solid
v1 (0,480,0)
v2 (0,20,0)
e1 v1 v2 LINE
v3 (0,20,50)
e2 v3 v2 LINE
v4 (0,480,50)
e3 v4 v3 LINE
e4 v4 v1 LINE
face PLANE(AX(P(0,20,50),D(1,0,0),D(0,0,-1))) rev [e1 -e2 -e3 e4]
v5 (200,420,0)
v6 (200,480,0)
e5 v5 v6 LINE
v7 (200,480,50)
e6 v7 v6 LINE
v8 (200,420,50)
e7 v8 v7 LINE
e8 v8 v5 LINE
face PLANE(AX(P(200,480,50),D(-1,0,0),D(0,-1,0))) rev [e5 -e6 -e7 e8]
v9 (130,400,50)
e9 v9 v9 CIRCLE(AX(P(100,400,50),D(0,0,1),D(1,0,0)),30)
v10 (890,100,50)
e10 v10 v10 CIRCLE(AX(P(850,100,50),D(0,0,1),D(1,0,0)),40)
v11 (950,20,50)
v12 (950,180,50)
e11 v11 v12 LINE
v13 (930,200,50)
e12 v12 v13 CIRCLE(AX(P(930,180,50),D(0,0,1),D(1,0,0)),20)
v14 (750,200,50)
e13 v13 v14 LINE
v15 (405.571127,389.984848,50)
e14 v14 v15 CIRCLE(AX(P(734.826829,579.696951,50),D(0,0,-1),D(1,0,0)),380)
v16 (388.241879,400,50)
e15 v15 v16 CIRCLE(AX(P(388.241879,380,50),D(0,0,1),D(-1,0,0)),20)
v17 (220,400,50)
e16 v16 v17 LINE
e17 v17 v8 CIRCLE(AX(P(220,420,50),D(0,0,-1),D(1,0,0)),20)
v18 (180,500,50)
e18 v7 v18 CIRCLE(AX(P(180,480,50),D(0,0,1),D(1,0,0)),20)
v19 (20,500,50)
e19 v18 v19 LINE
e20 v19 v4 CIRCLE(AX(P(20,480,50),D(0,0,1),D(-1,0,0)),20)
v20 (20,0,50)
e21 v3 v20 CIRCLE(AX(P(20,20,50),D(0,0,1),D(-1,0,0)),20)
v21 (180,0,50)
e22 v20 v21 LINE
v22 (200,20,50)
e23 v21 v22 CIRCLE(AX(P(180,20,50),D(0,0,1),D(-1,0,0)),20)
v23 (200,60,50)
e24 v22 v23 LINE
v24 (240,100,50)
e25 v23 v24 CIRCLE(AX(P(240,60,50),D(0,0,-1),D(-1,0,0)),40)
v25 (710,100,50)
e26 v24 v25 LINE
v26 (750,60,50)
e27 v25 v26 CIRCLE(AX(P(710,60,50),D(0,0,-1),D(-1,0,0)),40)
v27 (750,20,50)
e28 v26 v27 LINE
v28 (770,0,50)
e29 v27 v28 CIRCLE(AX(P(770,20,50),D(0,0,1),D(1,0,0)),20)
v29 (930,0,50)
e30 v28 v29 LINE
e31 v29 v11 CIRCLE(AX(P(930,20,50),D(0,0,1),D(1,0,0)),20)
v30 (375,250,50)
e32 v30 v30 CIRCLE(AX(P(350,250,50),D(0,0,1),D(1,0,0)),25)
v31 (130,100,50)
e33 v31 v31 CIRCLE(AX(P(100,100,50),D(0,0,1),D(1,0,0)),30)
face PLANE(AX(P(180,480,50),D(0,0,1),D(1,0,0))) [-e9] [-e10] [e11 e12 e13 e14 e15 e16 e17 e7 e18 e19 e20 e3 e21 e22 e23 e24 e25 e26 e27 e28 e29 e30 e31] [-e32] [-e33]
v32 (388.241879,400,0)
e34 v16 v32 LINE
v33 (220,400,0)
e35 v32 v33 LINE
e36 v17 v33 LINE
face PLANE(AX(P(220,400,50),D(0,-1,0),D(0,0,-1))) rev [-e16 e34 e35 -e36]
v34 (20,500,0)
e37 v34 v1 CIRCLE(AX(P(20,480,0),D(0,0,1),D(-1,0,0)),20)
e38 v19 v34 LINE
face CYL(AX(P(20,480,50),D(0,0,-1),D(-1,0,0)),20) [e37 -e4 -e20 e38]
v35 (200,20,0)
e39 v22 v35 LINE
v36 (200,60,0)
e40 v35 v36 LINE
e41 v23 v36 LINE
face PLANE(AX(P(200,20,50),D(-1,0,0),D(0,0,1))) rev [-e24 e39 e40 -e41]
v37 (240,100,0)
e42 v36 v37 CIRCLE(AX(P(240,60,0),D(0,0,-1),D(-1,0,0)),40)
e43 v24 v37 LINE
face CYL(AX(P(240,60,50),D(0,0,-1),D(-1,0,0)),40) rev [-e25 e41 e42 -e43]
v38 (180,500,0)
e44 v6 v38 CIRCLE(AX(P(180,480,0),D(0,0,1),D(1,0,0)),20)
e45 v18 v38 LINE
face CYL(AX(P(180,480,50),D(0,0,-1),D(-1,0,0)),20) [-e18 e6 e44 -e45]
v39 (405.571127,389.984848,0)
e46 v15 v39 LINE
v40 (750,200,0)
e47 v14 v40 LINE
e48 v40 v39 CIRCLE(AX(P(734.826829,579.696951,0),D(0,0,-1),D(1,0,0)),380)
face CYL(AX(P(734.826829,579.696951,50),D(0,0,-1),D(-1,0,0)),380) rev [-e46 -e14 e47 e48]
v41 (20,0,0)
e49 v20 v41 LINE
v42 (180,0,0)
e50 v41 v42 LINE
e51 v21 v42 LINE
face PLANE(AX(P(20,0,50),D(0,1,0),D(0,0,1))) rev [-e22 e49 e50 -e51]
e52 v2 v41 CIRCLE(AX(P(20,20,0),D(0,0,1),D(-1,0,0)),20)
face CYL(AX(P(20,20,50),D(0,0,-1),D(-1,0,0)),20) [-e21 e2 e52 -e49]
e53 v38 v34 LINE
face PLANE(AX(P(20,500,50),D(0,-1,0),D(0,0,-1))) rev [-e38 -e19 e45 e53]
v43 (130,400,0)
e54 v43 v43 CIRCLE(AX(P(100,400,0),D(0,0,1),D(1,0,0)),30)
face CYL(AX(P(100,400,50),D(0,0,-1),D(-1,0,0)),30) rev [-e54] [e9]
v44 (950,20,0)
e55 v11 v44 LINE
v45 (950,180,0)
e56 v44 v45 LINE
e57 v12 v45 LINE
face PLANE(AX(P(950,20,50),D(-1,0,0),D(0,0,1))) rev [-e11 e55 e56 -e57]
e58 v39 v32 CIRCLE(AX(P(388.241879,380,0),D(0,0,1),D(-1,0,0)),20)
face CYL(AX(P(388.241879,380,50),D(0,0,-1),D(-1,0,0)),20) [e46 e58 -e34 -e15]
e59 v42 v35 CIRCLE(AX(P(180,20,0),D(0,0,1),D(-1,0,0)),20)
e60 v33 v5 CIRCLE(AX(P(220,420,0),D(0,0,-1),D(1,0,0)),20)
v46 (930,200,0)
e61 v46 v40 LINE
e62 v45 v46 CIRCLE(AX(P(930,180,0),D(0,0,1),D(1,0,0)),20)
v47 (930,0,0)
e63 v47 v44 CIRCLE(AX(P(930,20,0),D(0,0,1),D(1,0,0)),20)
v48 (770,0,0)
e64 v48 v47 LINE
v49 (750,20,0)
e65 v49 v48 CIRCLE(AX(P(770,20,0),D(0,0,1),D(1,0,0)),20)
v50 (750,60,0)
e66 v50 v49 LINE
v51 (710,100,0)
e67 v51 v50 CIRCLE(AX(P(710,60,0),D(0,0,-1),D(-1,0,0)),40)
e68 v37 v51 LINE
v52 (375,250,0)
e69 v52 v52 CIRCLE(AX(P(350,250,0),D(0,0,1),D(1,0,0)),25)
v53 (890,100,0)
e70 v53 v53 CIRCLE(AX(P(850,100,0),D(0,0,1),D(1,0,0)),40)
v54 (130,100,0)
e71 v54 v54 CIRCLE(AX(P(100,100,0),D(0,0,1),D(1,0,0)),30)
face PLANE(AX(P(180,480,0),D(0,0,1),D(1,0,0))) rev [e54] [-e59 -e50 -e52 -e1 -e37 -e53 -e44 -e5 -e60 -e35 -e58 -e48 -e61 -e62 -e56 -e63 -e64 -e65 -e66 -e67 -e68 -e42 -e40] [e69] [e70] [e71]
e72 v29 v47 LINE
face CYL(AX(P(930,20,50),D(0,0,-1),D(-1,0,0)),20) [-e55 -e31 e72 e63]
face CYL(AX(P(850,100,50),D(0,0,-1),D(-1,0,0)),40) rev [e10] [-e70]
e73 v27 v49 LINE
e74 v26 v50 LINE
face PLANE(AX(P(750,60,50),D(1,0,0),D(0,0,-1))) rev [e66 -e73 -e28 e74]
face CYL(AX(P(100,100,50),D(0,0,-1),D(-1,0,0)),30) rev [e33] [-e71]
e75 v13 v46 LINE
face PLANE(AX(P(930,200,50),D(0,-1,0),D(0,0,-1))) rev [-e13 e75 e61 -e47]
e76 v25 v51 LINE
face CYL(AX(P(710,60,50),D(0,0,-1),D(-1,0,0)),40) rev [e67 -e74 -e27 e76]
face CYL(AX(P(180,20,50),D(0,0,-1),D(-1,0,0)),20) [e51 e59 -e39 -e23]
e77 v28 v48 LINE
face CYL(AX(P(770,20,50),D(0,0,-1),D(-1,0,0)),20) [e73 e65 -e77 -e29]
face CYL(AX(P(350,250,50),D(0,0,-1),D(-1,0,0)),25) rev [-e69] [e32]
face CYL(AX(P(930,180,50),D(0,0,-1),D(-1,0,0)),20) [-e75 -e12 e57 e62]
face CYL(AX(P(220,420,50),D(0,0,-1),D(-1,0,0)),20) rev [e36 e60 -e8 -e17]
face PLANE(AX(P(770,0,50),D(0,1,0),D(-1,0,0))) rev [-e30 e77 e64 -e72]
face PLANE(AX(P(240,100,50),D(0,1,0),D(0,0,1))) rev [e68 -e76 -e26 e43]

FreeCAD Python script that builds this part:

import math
import FreeCAD as App
import Part
import Sketcher
from FreeCAD import Vector

doc = App.newDocument("Part")
params = doc.addObject("Spreadsheet::Sheet", "Params")
for row, (alias, value) in enumerate([
    ("sketch1_diameter", "60 mm"),
    ("sketch1_diameter2", "80 mm"),
    ("sketch1_diameter3", "50 mm"),
    ("sketch1_radius", "20 mm"),
    ("sketch1_radius2", "380 mm"),
    ("pad1_length", "50 mm"),
], start=1):
    params.set(f"A{row}", alias)
    params.set(f"B{row}", "=" + value)
    params.setAlias(f"B{row}", alias)

body = doc.addObject("PartDesign::Body", "Body")

sketch1 = doc.addObject("Sketcher::SketchObject", "Sketch")
body.addObject(sketch1)
sketch1.AttachmentSupport = (doc.XY_Plane, [""])
sketch1.MapMode = "FlatFace"
sketch1.addGeometry(Part.LineSegment(Vector(200, 20, 0), Vector(200, 60, 0)), False)
sketch1.addGeometry(Part.ArcOfCircle(Part.Circle(Vector(240, 60, 0), Vector(0, 0, 1), 40), math.radians(90), math.radians(180)), False)
sketch1.addGeometry(Part.LineSegment(Vector(240, 100, 0), Vector(710, 100, 0)), False)
sketch1.addGeometry(Part.ArcOfCircle(Part.Circle(Vector(710, 60, 0), Vector(0, 0, 1), 40), math.radians(0), math.radians(90)), False)
sketch1.addGeometry(Part.LineSegment(Vector(750, 60, 0), Vector(750, 20, 0)), False)
sketch1.addGeometry(Part.ArcOfCircle(Part.Circle(Vector(770, 20, 0), Vector(0, 0, 1), 20), math.radians(180), math.radians(270)), False)
sketch1.addGeometry(Part.LineSegment(Vector(770, 0, 0), Vector(930, 0, 0)), False)
sketch1.addGeometry(Part.ArcOfCircle(Part.Circle(Vector(930, 20, 0), Vector(0, 0, 1), 20), math.radians(-90), math.radians(0)), False)
sketch1.addGeometry(Part.LineSegment(Vector(950, 20, 0), Vector(950, 180, 0)), False)
sketch1.addGeometry(Part.ArcOfCircle(Part.Circle(Vector(930, 180, 0), Vector(0, 0, 1), 20), math.radians(0), math.radians(90)), False)
sketch1.addGeometry(Part.LineSegment(Vector(930, 200, 0), Vector(750, 200, 0)), False)
sketch1.addGeometry(Part.ArcOfCircle(Part.Circle(Vector(735, 580, 0), Vector(0, 0, 1), 380), math.radians(-150), math.radians(-88)), False)
sketch1.addGeometry(Part.ArcOfCircle(Part.Circle(Vector(388, 380, 0), Vector(0, 0, 1), 20), math.radians(30), math.radians(90)), False)
sketch1.addGeometry(Part.LineSegment(Vector(388, 400, 0), Vector(220, 400, 0)), False)
sketch1.addGeometry(Part.ArcOfCircle(Part.Circle(Vector(220, 420, 0), Vector(0, 0, 1), 20), math.radians(180), math.radians(270)), False)
sketch1.addGeometry(Part.LineSegment(Vector(200, 420, 0), Vector(200, 480, 0)), False)
sketch1.addGeometry(Part.ArcOfCircle(Part.Circle(Vector(180, 480, 0), Vector(0, 0, 1), 20), math.radians(0), math.radians(90)), False)
sketch1.addGeometry(Part.LineSegment(Vector(180, 500, 0), Vector(20, 500, 0)), False)
sketch1.addGeometry(Part.ArcOfCircle(Part.Circle(Vector(20, 480, 0), Vector(0, 0, 1), 20), math.radians(90), math.radians(180)), False)
sketch1.addGeometry(Part.LineSegment(Vector(0, 480, 0), Vector(0, 20, 0)), False)
sketch1.addGeometry(Part.ArcOfCircle(Part.Circle(Vector(20, 20, 0), Vector(0, 0, 1), 20), math.radians(180), math.radians(270)), False)
sketch1.addGeometry(Part.LineSegment(Vector(20, 0, 0), Vector(180, 0, 0)), False)
sketch1.addGeometry(Part.ArcOfCircle(Part.Circle(Vector(180, 20, 0), Vector(0, 0, 1), 20), math.radians(-90), math.radians(0)), False)
sketch1.addGeometry(Part.Circle(Vector(100, 100, 0), Vector(0, 0, 1), 30), False)
sketch1.addGeometry(Part.Circle(Vector(850, 100, 0), Vector(0, 0, 1), 40), False)
sketch1.addGeometry(Part.Circle(Vector(350, 250, 0), Vector(0, 0, 1), 25), False)
sketch1.addGeometry(Part.Circle(Vector(100, 400, 0), Vector(0, 0, 1), 30), False)
sketch1.addConstraint(Sketcher.Constraint("Tangent", 0, 2, 1, 2))
sketch1.addConstraint(Sketcher.Constraint("Tangent", 1, 1, 2, 1))
sketch1.addConstraint(Sketcher.Constraint("Tangent", 2, 2, 3, 2))
sketch1.addConstraint(Sketcher.Constraint("Tangent", 3, 1, 4, 1))
sketch1.addConstraint(Sketcher.Constraint("Tangent", 4, 2, 5, 1))
sketch1.addConstraint(Sketcher.Constraint("Tangent", 5, 2, 6, 1))
sketch1.addConstraint(Sketcher.Constraint("Tangent", 6, 2, 7, 1))
sketch1.addConstraint(Sketcher.Constraint("Tangent", 7, 2, 8, 1))
sketch1.addConstraint(Sketcher.Constraint("Tangent", 8, 2, 9, 1))
sketch1.addConstraint(Sketcher.Constraint("Tangent", 9, 2, 10, 1))
sketch1.addConstraint(Sketcher.Constraint("Coincident", 10, 2, 11, 2))
sketch1.addConstraint(Sketcher.Constraint("Tangent", 11, 1, 12, 1))
sketch1.addConstraint(Sketcher.Constraint("Tangent", 12, 2, 13, 1))
sketch1.addConstraint(Sketcher.Constraint("Tangent", 13, 2, 14, 2))
sketch1.addConstraint(Sketcher.Constraint("Tangent", 14, 1, 15, 1))
sketch1.addConstraint(Sketcher.Constraint("Tangent", 15, 2, 16, 1))
sketch1.addConstraint(Sketcher.Constraint("Tangent", 16, 2, 17, 1))
sketch1.addConstraint(Sketcher.Constraint("Tangent", 17, 2, 18, 1))
sketch1.addConstraint(Sketcher.Constraint("Tangent", 18, 2, 19, 1))
sketch1.addConstraint(Sketcher.Constraint("Tangent", 19, 2, 20, 1))
sketch1.addConstraint(Sketcher.Constraint("Tangent", 20, 2, 21, 1))
sketch1.addConstraint(Sketcher.Constraint("Tangent", 21, 2, 22, 1))
sketch1.addConstraint(Sketcher.Constraint("Tangent", 22, 2, 0, 1))
sketch1.addConstraint(Sketcher.Constraint("Vertical", 0))
sketch1.addConstraint(Sketcher.Constraint("Horizontal", 2))
sketch1.addConstraint(Sketcher.Constraint("Vertical", 4))
sketch1.addConstraint(Sketcher.Constraint("Horizontal", 6))
sketch1.addConstraint(Sketcher.Constraint("Vertical", 8))
sketch1.addConstraint(Sketcher.Constraint("Horizontal", 10))
sketch1.addConstraint(Sketcher.Constraint("Horizontal", 13))
sketch1.addConstraint(Sketcher.Constraint("Vertical", 15))
sketch1.addConstraint(Sketcher.Constraint("Horizontal", 17))
sketch1.addConstraint(Sketcher.Constraint("Vertical", 19))
sketch1.addConstraint(Sketcher.Constraint("Horizontal", 21))
sketch1.addConstraint(Sketcher.Constraint("Equal", 1, 3))
sketch1.addConstraint(Sketcher.Constraint("Equal", 5, 7))
sketch1.addConstraint(Sketcher.Constraint("Equal", 7, 9))
sketch1.addConstraint(Sketcher.Constraint("Equal", 9, 12))
sketch1.addConstraint(Sketcher.Constraint("Equal", 12, 14))
sketch1.addConstraint(Sketcher.Constraint("Equal", 14, 16))
sketch1.addConstraint(Sketcher.Constraint("Equal", 16, 18))
sketch1.addConstraint(Sketcher.Constraint("Equal", 18, 20))
sketch1.addConstraint(Sketcher.Constraint("Equal", 20, 22))
sketch1.addConstraint(Sketcher.Constraint("Equal", 3, 24))
sketch1.addConstraint(Sketcher.Constraint("Equal", 23, 26))
sketch1.addConstraint(Sketcher.Constraint("PointOnObject", 5, 2, -1))
sketch1.addConstraint(Sketcher.Constraint("PointOnObject", 18, 2, -2))
sketch1.addConstraint(Sketcher.Constraint("PointOnObject", 20, 2, -1))
sketch1.addConstraint(Sketcher.Constraint("Horizontal", 23, 3, 24, 3))
sketch1.addConstraint(Sketcher.Constraint("Horizontal", 24, 3, 1, 1))
sketch1.addConstraint(Sketcher.Constraint("Horizontal", 26, 3, 12, 2))
sketch1.addConstraint(Sketcher.Constraint("Vertical", 16, 3, 22, 3))
sketch1.addConstraint(Sketcher.Constraint("Vertical", 23, 3, 26, 3))
sketch1.addConstraint(Sketcher.Constraint("Vertical", 4, 2, 10, 2))
sketch1.addConstraint(Sketcher.Constraint("Equal", 6, 17))
sketch1.addConstraint(Sketcher.Constraint("Equal", 21, 8))
sketch1.addConstraint(Sketcher.Constraint("Diameter", 23, 60.0))
sketch1.addConstraint(Sketcher.Constraint("Diameter", 24, 80.0))
sketch1.addConstraint(Sketcher.Constraint("Diameter", 25, 50.0))
sketch1.addConstraint(Sketcher.Constraint("Radius", 5, 20.0))
sketch1.addConstraint(Sketcher.Constraint("Radius", 11, 380.0))
sketch1.addConstraint(Sketcher.Constraint("DistanceX", 2, 1, 2, 2, 470.0))
sketch1.addConstraint(Sketcher.Constraint("DistanceX", 6, 1, 6, 2, 160.0))
sketch1.addConstraint(Sketcher.Constraint("DistanceY", 0, 1, 0, 2, 40.0))
sketch1.addConstraint(Sketcher.Constraint("DistanceY", 15, 1, 15, 2, 60.0))
sketch1.addConstraint(Sketcher.Constraint("DistanceY", 19, 2, 19, 1, 460.0))
sketch1.addConstraint(Sketcher.Constraint("DistanceX", -1, 1, 23, 3, 100.0))
sketch1.addConstraint(Sketcher.Constraint("DistanceX", -1, 1, 24, 3, 850.0))
sketch1.addConstraint(Sketcher.Constraint("DistanceX", -1, 1, 25, 3, 350.0))
sketch1.addConstraint(Sketcher.Constraint("DistanceY", -1, 1, 25, 3, 250.0))
sketch1.addConstraint(Sketcher.Constraint("DistanceX", 13, 2, 13, 1, 168.241879))
sketch1.setExpression("Constraints[56]", "Params.sketch1_diameter")
sketch1.setExpression("Constraints[57]", "Params.sketch1_diameter2")
sketch1.setExpression("Constraints[58]", "Params.sketch1_diameter3")
sketch1.setExpression("Constraints[59]", "Params.sketch1_radius")
sketch1.setExpression("Constraints[60]", "Params.sketch1_radius2")
pad1 = doc.addObject("PartDesign::Pad", "Pad")
body.addObject(pad1)
pad1.Profile = sketch1
pad1.setExpression("Length", "Params.pad1_length")

doc.recompute()
